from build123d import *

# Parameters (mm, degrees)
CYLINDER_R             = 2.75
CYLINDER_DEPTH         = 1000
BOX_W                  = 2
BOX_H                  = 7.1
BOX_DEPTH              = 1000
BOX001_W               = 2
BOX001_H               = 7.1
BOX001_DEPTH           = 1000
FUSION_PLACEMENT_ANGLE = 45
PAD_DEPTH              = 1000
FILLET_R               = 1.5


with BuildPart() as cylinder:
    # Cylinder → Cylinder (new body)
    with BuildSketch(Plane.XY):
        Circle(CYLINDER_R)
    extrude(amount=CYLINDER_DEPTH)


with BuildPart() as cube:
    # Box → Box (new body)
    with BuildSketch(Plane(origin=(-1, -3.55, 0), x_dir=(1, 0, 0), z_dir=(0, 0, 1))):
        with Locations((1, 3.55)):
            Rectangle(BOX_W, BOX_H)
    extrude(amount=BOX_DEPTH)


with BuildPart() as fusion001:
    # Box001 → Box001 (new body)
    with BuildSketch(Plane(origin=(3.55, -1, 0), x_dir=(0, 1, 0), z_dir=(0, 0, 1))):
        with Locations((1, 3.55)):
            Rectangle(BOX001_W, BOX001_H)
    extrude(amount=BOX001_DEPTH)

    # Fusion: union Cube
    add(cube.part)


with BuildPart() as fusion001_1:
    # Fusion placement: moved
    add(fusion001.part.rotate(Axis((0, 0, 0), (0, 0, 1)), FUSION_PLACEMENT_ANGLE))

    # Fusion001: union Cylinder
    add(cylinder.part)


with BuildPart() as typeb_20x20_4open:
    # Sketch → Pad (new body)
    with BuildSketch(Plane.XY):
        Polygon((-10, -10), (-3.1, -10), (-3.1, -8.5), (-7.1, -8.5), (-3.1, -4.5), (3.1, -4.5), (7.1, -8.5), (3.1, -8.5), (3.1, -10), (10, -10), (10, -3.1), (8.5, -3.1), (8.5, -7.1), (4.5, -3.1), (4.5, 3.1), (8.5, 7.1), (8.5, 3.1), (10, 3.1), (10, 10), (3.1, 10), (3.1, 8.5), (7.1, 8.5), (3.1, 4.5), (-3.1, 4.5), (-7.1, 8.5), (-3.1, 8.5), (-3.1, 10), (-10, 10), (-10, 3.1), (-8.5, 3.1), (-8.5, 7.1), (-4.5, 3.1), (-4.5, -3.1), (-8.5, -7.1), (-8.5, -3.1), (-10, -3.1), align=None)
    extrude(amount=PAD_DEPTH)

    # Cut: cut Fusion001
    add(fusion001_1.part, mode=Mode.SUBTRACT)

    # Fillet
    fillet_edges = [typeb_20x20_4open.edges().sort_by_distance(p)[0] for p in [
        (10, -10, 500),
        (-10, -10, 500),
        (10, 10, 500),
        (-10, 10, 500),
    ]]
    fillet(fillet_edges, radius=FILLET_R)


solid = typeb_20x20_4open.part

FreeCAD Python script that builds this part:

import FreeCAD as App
import Part
import Sketcher

V = App.Vector


def edges_at(feature, points):
    """Names of the edges that pass closest to the given points."""
    edges = feature.Shape.Edges
    near = lambda p: min(range(len(edges)), key=lambda i: edges[i].distToShape(Part.Vertex(*p))[0])
    return sorted({f"Edge{near(p) + 1}" for p in points})


def add_polygon(sketch, points):
    """Adds a closed chain of lines whose ends are joined by coincident constraints."""
    first, n = sketch.GeometryCount, len(points)
    for a, b in zip(points, points[1:] + points[:1]):
        sketch.addGeometry(Part.LineSegment(App.Vector(*a, 0), App.Vector(*b, 0)), False)
    for i in range(n):
        sketch.addConstraint(Sketcher.Constraint("Coincident", first + i, 2, first + (i + 1) % n, 1))

doc = App.newDocument("Part")
body = doc.addObject("PartDesign::Body", "Body")

# Sketch on XY plane
sketch1 = doc.addObject("Sketcher::SketchObject", "Sketch")
body.addObject(sketch1)
sketch1.AttachmentSupport = (doc.XY_Plane, [""])
sketch1.MapMode = "FlatFace"
sketch1.addGeometry(Part.Circle(V(0, 0, 0), V(0, 0, 1), 2.75), False)
sketch1.addConstraint([
    Sketcher.Constraint("Coincident", 0, 3, -1, 1),
    Sketcher.Constraint("Diameter", 0, 5.5),
])
pad1 = doc.addObject("PartDesign::Pad", "Pad")
body.addObject(pad1)
pad1.Profile = sketch1
pad1.Length = 1000
body2 = doc.addObject("PartDesign::Body", "Body001")

# Sketch on XY plane
sketch2 = doc.addObject("Sketcher::SketchObject", "Sketch001")
body2.addObject(sketch2)
sketch2.AttachmentSupport = (doc.getObject("XY_Plane001"), [""])
sketch2.MapMode = "FlatFace"
add_polygon(sketch2, [(-1, 3.55), (-1, -3.55), (1, -3.55), (1, 3.55)])  # lines 0-3
sketch2.addConstraint([
    Sketcher.Constraint("Vertical", 0),
    Sketcher.Constraint("Horizontal", 1),
    Sketcher.Constraint("Vertical", 2),
    Sketcher.Constraint("Horizontal", 3),
    Sketcher.Constraint("Symmetric", 0, 2, 2, 2, -1, 1),
    Sketcher.Constraint("DistanceX", 1, 1, 1, 2, 2.0),
    Sketcher.Constraint("DistanceY", 0, 2, 0, 1, 7.1),
])
pad2 = doc.addObject("PartDesign::Pad", "Pad001")
body2.addObject(pad2)
pad2.Profile = sketch2
pad2.Length = 1000
body3 = doc.addObject("PartDesign::Body", "Body002")

# Sketch on XY plane
sketch3 = doc.addObject("Sketcher::SketchObject", "Sketch002")
body3.addObject(sketch3)
sketch3.AttachmentSupport = (doc.getObject("XY_Plane002"), [""])
sketch3.MapMode = "FlatFace"
add_polygon(sketch3, [(-3.55, -1), (3.55, -1), (3.55, 1), (-3.55, 1)])  # lines 0-3
sketch3.addConstraint([
    Sketcher.Constraint("Horizontal", 0),
    Sketcher.Constraint("Vertical", 1),
    Sketcher.Constraint("Horizontal", 2),
    Sketcher.Constraint("Vertical", 3),
    Sketcher.Constraint("Symmetric", 0, 2, 2, 2, -1, 1),
    Sketcher.Constraint("DistanceY", 1, 1, 1, 2, 2.0),
    Sketcher.Constraint("DistanceX", 0, 1, 0, 2, 7.1),
])
pad3 = doc.addObject("PartDesign::Pad", "Pad002")
body3.addObject(pad3)
pad3.Profile = sketch3
pad3.Length = 1000
doc.recompute()

boolean = doc.addObject("PartDesign::Boolean", "Boolean")
body3.addObject(boolean)
boolean.Type = "Fuse"
boolean.addObjects([body2])
body4 = doc.addObject("PartDesign::Body", "Body003")
doc.recompute()

body3.Placement = App.Placement(V(0, 0, 0), App.Rotation(V(0, 0, 1), 45))
boolean2 = doc.addObject("PartDesign::Boolean", "Boolean001")
body4.addObject(boolean2)
boolean2.Type = "Fuse"
boolean2.addObjects([body3])
doc.recompute()

boolean3 = doc.addObject("PartDesign::Boolean", "Boolean002")
body4.addObject(boolean3)
boolean3.Type = "Fuse"
boolean3.addObjects([body])
body5 = doc.addObject("PartDesign::Body", "Body004")

# Sketch on XY plane
sketch4 = doc.addObject("Sketcher::SketchObject", "Sketch003")
body5.addObject(sketch4)
sketch4.AttachmentSupport = (doc.getObject("XY_Plane004"), [""])
sketch4.MapMode = "FlatFace"
add_polygon(sketch4, [(-10, -10), (-3.1, -10), (-3.1, -8.5), (-7.1, -8.5), (-3.1, -4.5), (3.1, -4.5), (7.1, -8.5), (3.1, -8.5), (3.1, -10), (10, -10), (10, -3.1), (8.5, -3.1), (8.5, -7.1), (4.5, -3.1), (4.5, 3.1), (8.5, 7.1), (8.5, 3.1), (10, 3.1), (10, 10), (3.1, 10), (3.1, 8.5), (7.1, 8.5), (3.1, 4.5), (-3.1, 4.5), (-7.1, 8.5), (-3.1, 8.5), (-3.1, 10), (-10, 10), (-10, 3.1), (-8.5, 3.1), (-8.5, 7.1), (-4.5, 3.1), (-4.5, -3.1), (-8.5, -7.1), (-8.5, -3.1), (-10, -3.1)])  # lines 0-35
sketch4.addConstraint([
    Sketcher.Constraint("Horizontal", 0),
    Sketcher.Constraint("Vertical", 1),
    Sketcher.Constraint("Horizontal", 2),
    Sketcher.Constraint("Horizontal", 4),
    Sketcher.Constraint("Horizontal", 6),
    Sketcher.Constraint("Vertical", 7),
    Sketcher.Constraint("Horizontal", 8),
    Sketcher.Constraint("Vertical", 9),
    Sketcher.Constraint("Horizontal", 10),
    Sketcher.Constraint("Vertical", 11),
    Sketcher.Constraint("Vertical", 13),
    Sketcher.Constraint("Vertical", 15),
    Sketcher.Constraint("Horizontal", 16),
    Sketcher.Constraint("Vertical", 17),
    Sketcher.Constraint("Horizontal", 18),
    Sketcher.Constraint("Vertical", 19),
    Sketcher.Constraint("Horizontal", 20),
    Sketcher.Constraint("Horizontal", 22),
    Sketcher.Constraint("Horizontal", 24),
    Sketcher.Constraint("Vertical", 25),
    Sketcher.Constraint("Horizontal", 26),
    Sketcher.Constraint("Vertical", 27),
    Sketcher.Constraint("Horizontal", 28),
    Sketcher.Constraint("Vertical", 29),
    Sketcher.Constraint("Vertical", 31),
    Sketcher.Constraint("Vertical", 33),
    Sketcher.Constraint("Horizontal", 34),
    Sketcher.Constraint("Vertical", 35),
    Sketcher.Constraint("Symmetric", 0, 2, 18, 2, -1, 1),
    Sketcher.Constraint("Symmetric", 2, 2, 20, 2, -1, 1),
    Sketcher.Constraint("Symmetric", 3, 2, 21, 2, -1, 1),
    Sketcher.Constraint("Symmetric", 5, 2, 23, 2, -1, 1),
    Sketcher.Constraint("Symmetric", 7, 2, 25, 2, -1, 1),
    Sketcher.Constraint("Symmetric", 9, 2, 27, 2, -1, 1),
    Sketcher.Constraint("Symmetric", 11, 2, 29, 2, -1, 1),
    Sketcher.Constraint("Symmetric", 12, 2, 30, 2, -1, 1),
    Sketcher.Constraint("Symmetric", 14, 2, 32, 2, -1, 1),
    Sketcher.Constraint("Symmetric", 16, 2, 34, 2, -1, 1),
    Sketcher.Constraint("Symmetric", 2, 2, 5, 2, -2),
    Sketcher.Constraint("Symmetric", 0, 2, 7, 2, -2),
    Sketcher.Constraint("Symmetric", 16, 2, 27, 2, -2),
    Sketcher.Constraint("Symmetric", 14, 2, 29, 2, -2),
    Sketcher.Constraint("Perpendicular", 3, 5),
    Sketcher.Constraint("Parallel", 5, 12),
    Sketcher.Constraint("Perpendicular", 12, 14),
    Sketcher.Constraint("Perpendicular", 21, 23),
    Sketcher.Constraint("Perpendicular", 30, 32),
    Sketcher.Constraint("Horizontal", 10, 2, 12, 2),
    Sketcher.Constraint("Horizontal", 13, 2, 15, 2),
    Sketcher.Constraint("Vertical", 1, 2, 3, 2),
    Sketcher.Constraint("Equal", 34, 1),
    Sketcher.Constraint("Equal", 26, 9),
    Sketcher.Constraint("Equal", 24, 11),
    Sketcher.Constraint("Equal", 22, 13),
    Sketcher.Constraint("DistanceX", 2, 2, 2, 1, 4.0),
    Sketcher.Constraint("DistanceX", 0, 1, 0, 2, 6.9),
    Sketcher.Constraint("DistanceX", 4, 1, 4, 2, 6.2),
    Sketcher.Constraint("DistanceX", 10, 2, 10, 1, 1.5),
])
pad4 = doc.addObject("PartDesign::Pad", "Pad003")
body5.addObject(pad4)
pad4.Profile = sketch4
pad4.Length = 1000
doc.recompute()

boolean4 = doc.addObject("PartDesign::Boolean", "Boolean003")
body5.addObject(boolean4)
boolean4.Type = "Cut"
boolean4.addObjects([body4])
doc.recompute()

fillet = doc.addObject("PartDesign::Fillet", "Fillet")
body5.addObject(fillet)
fillet.Base = (boolean4, edges_at(boolean4, [
    (10, -10, 500),
    (-10, -10, 500),
    (10, 10, 500),
    (-10, 10, 500),
]))
fillet.Radius = 1.5

doc.recompute()
